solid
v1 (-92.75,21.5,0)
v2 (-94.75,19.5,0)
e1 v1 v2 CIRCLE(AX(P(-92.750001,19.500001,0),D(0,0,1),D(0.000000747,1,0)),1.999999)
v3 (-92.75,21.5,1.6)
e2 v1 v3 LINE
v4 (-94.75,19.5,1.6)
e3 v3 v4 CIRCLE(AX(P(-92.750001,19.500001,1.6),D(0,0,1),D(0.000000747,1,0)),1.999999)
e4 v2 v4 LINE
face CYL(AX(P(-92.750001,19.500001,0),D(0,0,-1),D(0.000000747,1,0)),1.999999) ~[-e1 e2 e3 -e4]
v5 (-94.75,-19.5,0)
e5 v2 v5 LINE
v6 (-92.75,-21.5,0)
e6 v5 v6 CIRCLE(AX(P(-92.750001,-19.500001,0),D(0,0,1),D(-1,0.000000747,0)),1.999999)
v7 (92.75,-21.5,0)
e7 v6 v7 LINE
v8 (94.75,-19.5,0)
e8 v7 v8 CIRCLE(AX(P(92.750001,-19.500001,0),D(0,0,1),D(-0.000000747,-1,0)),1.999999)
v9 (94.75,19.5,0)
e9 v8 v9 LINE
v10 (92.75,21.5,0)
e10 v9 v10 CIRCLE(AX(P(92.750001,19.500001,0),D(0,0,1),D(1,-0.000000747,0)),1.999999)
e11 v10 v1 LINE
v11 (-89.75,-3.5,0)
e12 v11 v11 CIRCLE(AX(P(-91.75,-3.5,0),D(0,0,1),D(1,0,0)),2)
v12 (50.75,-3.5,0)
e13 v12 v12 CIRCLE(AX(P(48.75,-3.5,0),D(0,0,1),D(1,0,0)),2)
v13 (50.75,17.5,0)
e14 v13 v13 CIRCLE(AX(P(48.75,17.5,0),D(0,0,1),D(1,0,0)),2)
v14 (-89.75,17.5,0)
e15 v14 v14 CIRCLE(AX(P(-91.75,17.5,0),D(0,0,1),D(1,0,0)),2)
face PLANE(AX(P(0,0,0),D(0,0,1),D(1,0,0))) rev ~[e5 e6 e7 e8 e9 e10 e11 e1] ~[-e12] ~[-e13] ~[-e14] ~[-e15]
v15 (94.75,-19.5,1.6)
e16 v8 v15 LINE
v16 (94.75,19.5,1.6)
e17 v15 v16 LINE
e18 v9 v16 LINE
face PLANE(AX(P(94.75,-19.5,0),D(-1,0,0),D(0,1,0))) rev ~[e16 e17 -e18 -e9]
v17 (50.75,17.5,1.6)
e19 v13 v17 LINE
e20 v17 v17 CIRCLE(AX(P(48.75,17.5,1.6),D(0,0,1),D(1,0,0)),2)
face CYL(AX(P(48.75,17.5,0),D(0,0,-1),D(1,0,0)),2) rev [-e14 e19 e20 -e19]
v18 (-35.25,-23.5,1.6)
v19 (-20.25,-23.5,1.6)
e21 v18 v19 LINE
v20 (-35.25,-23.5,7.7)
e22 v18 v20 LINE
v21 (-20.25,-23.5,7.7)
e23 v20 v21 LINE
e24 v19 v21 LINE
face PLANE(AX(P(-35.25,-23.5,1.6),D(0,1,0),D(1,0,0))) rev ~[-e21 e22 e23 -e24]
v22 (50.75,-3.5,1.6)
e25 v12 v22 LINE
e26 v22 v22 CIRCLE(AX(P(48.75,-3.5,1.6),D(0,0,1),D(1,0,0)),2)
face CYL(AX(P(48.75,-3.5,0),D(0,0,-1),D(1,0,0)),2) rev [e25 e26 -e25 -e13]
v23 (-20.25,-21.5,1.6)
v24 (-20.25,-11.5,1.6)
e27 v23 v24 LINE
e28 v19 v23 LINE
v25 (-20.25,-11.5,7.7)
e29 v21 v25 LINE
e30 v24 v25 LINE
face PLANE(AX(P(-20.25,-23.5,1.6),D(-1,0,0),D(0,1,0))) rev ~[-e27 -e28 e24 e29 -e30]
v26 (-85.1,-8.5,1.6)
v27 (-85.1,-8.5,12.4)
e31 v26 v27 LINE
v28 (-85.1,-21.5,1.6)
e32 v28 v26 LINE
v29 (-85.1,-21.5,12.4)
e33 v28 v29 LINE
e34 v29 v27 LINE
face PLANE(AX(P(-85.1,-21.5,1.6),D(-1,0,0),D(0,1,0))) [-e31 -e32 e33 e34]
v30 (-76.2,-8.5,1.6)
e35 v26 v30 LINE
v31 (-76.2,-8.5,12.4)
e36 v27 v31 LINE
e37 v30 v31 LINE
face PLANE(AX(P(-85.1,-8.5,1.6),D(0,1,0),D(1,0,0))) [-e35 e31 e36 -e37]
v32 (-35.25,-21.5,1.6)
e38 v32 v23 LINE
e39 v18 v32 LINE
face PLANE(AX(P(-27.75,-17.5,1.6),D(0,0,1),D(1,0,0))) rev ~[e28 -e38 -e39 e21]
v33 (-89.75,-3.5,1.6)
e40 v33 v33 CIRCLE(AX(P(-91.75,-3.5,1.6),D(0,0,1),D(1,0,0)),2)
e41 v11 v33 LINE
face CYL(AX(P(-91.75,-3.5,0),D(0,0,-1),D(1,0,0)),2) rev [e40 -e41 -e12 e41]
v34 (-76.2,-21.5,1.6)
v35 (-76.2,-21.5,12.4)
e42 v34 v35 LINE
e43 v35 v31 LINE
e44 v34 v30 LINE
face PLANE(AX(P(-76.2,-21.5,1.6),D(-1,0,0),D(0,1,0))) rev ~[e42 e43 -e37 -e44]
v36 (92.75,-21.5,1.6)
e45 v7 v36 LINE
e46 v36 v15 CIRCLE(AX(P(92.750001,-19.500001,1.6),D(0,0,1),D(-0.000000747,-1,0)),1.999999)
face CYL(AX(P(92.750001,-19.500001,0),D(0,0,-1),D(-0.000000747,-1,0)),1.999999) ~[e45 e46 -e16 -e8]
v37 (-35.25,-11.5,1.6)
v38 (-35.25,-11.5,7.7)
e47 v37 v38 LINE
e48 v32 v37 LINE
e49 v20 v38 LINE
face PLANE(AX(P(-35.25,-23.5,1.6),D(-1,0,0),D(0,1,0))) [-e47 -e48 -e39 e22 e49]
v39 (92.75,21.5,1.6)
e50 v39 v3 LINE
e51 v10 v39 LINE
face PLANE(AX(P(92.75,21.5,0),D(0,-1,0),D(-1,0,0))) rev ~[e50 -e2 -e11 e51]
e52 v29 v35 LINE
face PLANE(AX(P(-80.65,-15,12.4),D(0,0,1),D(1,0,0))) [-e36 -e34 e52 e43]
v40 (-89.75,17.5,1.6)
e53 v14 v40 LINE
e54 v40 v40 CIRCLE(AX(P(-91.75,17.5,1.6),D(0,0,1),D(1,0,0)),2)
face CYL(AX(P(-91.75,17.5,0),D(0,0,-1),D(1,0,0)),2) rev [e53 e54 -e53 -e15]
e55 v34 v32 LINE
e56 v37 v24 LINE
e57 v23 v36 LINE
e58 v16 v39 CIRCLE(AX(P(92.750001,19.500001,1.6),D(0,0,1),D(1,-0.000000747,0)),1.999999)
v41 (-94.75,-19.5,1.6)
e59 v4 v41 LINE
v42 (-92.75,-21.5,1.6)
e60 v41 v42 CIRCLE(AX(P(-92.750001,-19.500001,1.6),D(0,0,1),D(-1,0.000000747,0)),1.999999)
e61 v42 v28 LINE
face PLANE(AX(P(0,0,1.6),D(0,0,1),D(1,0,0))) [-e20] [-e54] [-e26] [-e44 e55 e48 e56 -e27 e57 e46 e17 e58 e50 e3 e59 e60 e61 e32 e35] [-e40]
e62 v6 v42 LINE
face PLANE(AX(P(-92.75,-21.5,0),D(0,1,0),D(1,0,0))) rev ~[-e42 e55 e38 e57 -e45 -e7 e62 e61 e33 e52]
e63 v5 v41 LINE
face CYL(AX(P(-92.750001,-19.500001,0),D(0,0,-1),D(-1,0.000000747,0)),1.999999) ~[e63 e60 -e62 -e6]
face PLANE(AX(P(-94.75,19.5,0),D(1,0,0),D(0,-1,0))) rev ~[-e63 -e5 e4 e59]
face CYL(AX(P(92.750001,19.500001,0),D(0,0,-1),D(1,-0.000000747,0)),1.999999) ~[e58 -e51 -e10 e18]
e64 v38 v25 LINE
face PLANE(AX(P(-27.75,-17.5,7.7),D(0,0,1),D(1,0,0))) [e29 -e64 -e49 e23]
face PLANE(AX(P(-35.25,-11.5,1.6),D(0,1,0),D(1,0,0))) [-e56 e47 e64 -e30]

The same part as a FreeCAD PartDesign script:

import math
import FreeCAD as App
import Part
import Sketcher
from FreeCAD import Vector
Q = App.Units.Quantity

doc = App.newDocument("Part")
body = doc.addObject("PartDesign::Body", "Body")

sketch1 = body.newObject("Sketcher::SketchObject", "Sketch")
sketch1.AttachmentSupport = (doc.getObject("XY_Plane"), [""])
sketch1.MapMode = "FlatFace"
sketch1.addGeometry(Part.LineSegment(Vector(-92.8, -21.5, 0), Vector(92.8, -21.5, 0)), False)
sketch1.addGeometry(Part.ArcOfCircle(Part.Circle(Vector(92.8, -19.5, 0), Vector(0, 0, 1), 2), math.radians(-90), math.radians(0)), False)
sketch1.addGeometry(Part.LineSegment(Vector(94.8, -19.5, 0), Vector(94.8, 19.5, 0)), False)
sketch1.addGeometry(Part.ArcOfCircle(Part.Circle(Vector(92.8, 19.5, 0), Vector(0, 0, 1), 2), math.radians(0), math.radians(90)), False)
sketch1.addGeometry(Part.LineSegment(Vector(92.8, 21.5, 0), Vector(-92.8, 21.5, 0)), False)
sketch1.addGeometry(Part.ArcOfCircle(Part.Circle(Vector(-92.8, 19.5, 0), Vector(0, 0, 1), 2), math.radians(90), math.radians(180)), False)
sketch1.addGeometry(Part.LineSegment(Vector(-94.8, 19.5, 0), Vector(-94.8, -19.5, 0)), False)
sketch1.addGeometry(Part.ArcOfCircle(Part.Circle(Vector(-92.8, -19.5, 0), Vector(0, 0, 1), 2), math.radians(180), math.radians(270)), False)
sketch1.addGeometry(Part.Circle(Vector(-91.8, -3.5, 0), Vector(0, 0, 1), 2), False)
sketch1.addGeometry(Part.Circle(Vector(48.8, -3.5, 0), Vector(0, 0, 1), 2), False)
sketch1.addGeometry(Part.Circle(Vector(-91.8, 17.5, 0), Vector(0, 0, 1), 2), False)
sketch1.addGeometry(Part.Circle(Vector(48.8, 17.5, 0), Vector(0, 0, 1), 2), False)
sketch1.addConstraint(Sketcher.Constraint("Tangent", 0, 2, 1, 1))
sketch1.addConstraint(Sketcher.Constraint("Tangent", 1, 2, 2, 1))
sketch1.addConstraint(Sketcher.Constraint("Tangent", 2, 2, 3, 1))
sketch1.addConstraint(Sketcher.Constraint("Tangent", 3, 2, 4, 1))
sketch1.addConstraint(Sketcher.Constraint("Tangent", 4, 2, 5, 1))
sketch1.addConstraint(Sketcher.Constraint("Tangent", 5, 2, 6, 1))
sketch1.addConstraint(Sketcher.Constraint("Tangent", 6, 2, 7, 1))
sketch1.addConstraint(Sketcher.Constraint("Tangent", 7, 2, 0, 1))
sketch1.addConstraint(Sketcher.Constraint("Horizontal", 0))
sketch1.addConstraint(Sketcher.Constraint("Vertical", 2))
sketch1.addConstraint(Sketcher.Constraint("Horizontal", 4))
sketch1.addConstraint(Sketcher.Constraint("Vertical", 6))
sketch1.addConstraint(Sketcher.Constraint("Equal", 1, 3))
sketch1.addConstraint(Sketcher.Constraint("Equal", 3, 5))
sketch1.addConstraint(Sketcher.Constraint("Equal", 5, 7))
sketch1.addConstraint(Sketcher.Constraint("Equal", 7, 8))
sketch1.addConstraint(Sketcher.Constraint("Equal", 8, 9))
sketch1.addConstraint(Sketcher.Constraint("Equal", 9, 10))
sketch1.addConstraint(Sketcher.Constraint("Equal", 10, 11))
sketch1.addConstraint(Sketcher.Constraint("Symmetric", 1, 3, 5, 3, -1, 1))
sketch1.addConstraint(Sketcher.Constraint("Horizontal", 8, 3, 9, 3))
sketch1.addConstraint(Sketcher.Constraint("Horizontal", 10, 3, 11, 3))
sketch1.addConstraint(Sketcher.Constraint("Vertical", 8, 3, 10, 3))
sketch1.addConstraint(Sketcher.Constraint("Vertical", 9, 3, 11, 3))
sketch1.addConstraint(Sketcher.Constraint("Diameter", 8, Q("4 mm")))
sketch1.addConstraint(Sketcher.Constraint("DistanceY", 2, 1, 2, 2, Q("39 mm")))
sketch1.addConstraint(Sketcher.Constraint("DistanceX", 0, 1, 0, 2, Q("185.5 mm")))
sketch1.addConstraint(Sketcher.Constraint("DistanceX", 7, 3, 8, 3, Q("1.000001 mm")))
sketch1.addConstraint(Sketcher.Constraint("DistanceY", 7, 3, 8, 3, Q("16.000001 mm")))
sketch1.addConstraint(Sketcher.Constraint("DistanceX", 9, 3, 1, 3, Q("44.000001 mm")))
sketch1.addConstraint(Sketcher.Constraint("DistanceY", 10, 3, 5, 3, Q("2.000001 mm")))
pad1 = body.newObject("PartDesign::Pad", "Pad")
pad1.Profile = sketch1
pad1.Length = 1.6

sketch2 = body.newObject("Sketcher::SketchObject", "Sketch001")
sketch2.AttachmentSupport = (doc.getObject("XY_Plane"), [""])
sketch2.MapMode = "FlatFace"
sketch2.AttachmentOffset = App.Placement(Vector(0, 0, 1.6), App.Rotation())
sketch2.addGeometry(Part.LineSegment(Vector(-85, -8, 0), Vector(-85, -22, 0)), False)
sketch2.addGeometry(Part.LineSegment(Vector(-85, -22, 0), Vector(-76, -22, 0)), False)
sketch2.addGeometry(Part.LineSegment(Vector(-76, -22, 0), Vector(-76, -8, 0)), False)
sketch2.addGeometry(Part.LineSegment(Vector(-76, -8, 0), Vector(-85, -8, 0)), False)
sketch2.addConstraint(Sketcher.Constraint("Coincident", 0, 2, 1, 1))
sketch2.addConstraint(Sketcher.Constraint("Coincident", 1, 2, 2, 1))
sketch2.addConstraint(Sketcher.Constraint("Coincident", 2, 2, 3, 1))
sketch2.addConstraint(Sketcher.Constraint("Coincident", 3, 2, 0, 1))
sketch2.addConstraint(Sketcher.Constraint("Vertical", 0))
sketch2.addConstraint(Sketcher.Constraint("Horizontal", 1))
sketch2.addConstraint(Sketcher.Constraint("Vertical", 2))
sketch2.addConstraint(Sketcher.Constraint("Horizontal", 3))
sketch2.addConstraint(Sketcher.Constraint("DistanceY", 0, 2, 0, 1, Q("13 mm")))
sketch2.addConstraint(Sketcher.Constraint("DistanceX", 1, 1, 1, 2, Q("8.9 mm")))
sketch2.addConstraint(Sketcher.Constraint("DistanceX", 0, 2, -1, 1, Q("85.1 mm")))
sketch2.addConstraint(Sketcher.Constraint("DistanceY", 0, 2, -1, 1, Q("21.5 mm")))
pad2 = body.newObject("PartDesign::Pad", "Pad001")
pad2.Profile = sketch2
pad2.Length = 10.8

sketch3 = body.newObject("Sketcher::SketchObject", "Sketch002")
sketch3.AttachmentSupport = (doc.getObject("XY_Plane"), [""])
sketch3.MapMode = "FlatFace"
sketch3.AttachmentOffset = App.Placement(Vector(0, 0, 1.6), App.Rotation())
sketch3.addGeometry(Part.LineSegment(Vector(-35, -12, 0), Vector(-35, -24, 0)), False)
sketch3.addGeometry(Part.LineSegment(Vector(-35, -24, 0), Vector(-20, -24, 0)), False)
sketch3.addGeometry(Part.LineSegment(Vector(-20, -24, 0), Vector(-20, -12, 0)), False)
sketch3.addGeometry(Part.LineSegment(Vector(-20, -12, 0), Vector(-35, -12, 0)), False)
sketch3.addConstraint(Sketcher.Constraint("Coincident", 0, 2, 1, 1))
sketch3.addConstraint(Sketcher.Constraint("Coincident", 1, 2, 2, 1))
sketch3.addConstraint(Sketcher.Constraint("Coincident", 2, 2, 3, 1))
sketch3.addConstraint(Sketcher.Constraint("Coincident", 3, 2, 0, 1))
sketch3.addConstraint(Sketcher.Constraint("Vertical", 0))
sketch3.addConstraint(Sketcher.Constraint("Horizontal", 1))
sketch3.addConstraint(Sketcher.Constraint("Vertical", 2))
sketch3.addConstraint(Sketcher.Constraint("Horizontal", 3))
sketch3.addConstraint(Sketcher.Constraint("DistanceX", 1, 1, 1, 2, Q("15 mm")))
sketch3.addConstraint(Sketcher.Constraint("DistanceY", 0, 2, 0, 1, Q("12 mm")))
sketch3.addConstraint(Sketcher.Constraint("DistanceY", 0, 2, -1, 1, Q("23.5 mm")))
sketch3.addConstraint(Sketcher.Constraint("DistanceX", 0, 2, -1, 1, Q("35.25 mm")))
pad3 = body.newObject("PartDesign::Pad", "Pad002")
pad3.Profile = sketch3
pad3.Length = 6.1

doc.recompute()
